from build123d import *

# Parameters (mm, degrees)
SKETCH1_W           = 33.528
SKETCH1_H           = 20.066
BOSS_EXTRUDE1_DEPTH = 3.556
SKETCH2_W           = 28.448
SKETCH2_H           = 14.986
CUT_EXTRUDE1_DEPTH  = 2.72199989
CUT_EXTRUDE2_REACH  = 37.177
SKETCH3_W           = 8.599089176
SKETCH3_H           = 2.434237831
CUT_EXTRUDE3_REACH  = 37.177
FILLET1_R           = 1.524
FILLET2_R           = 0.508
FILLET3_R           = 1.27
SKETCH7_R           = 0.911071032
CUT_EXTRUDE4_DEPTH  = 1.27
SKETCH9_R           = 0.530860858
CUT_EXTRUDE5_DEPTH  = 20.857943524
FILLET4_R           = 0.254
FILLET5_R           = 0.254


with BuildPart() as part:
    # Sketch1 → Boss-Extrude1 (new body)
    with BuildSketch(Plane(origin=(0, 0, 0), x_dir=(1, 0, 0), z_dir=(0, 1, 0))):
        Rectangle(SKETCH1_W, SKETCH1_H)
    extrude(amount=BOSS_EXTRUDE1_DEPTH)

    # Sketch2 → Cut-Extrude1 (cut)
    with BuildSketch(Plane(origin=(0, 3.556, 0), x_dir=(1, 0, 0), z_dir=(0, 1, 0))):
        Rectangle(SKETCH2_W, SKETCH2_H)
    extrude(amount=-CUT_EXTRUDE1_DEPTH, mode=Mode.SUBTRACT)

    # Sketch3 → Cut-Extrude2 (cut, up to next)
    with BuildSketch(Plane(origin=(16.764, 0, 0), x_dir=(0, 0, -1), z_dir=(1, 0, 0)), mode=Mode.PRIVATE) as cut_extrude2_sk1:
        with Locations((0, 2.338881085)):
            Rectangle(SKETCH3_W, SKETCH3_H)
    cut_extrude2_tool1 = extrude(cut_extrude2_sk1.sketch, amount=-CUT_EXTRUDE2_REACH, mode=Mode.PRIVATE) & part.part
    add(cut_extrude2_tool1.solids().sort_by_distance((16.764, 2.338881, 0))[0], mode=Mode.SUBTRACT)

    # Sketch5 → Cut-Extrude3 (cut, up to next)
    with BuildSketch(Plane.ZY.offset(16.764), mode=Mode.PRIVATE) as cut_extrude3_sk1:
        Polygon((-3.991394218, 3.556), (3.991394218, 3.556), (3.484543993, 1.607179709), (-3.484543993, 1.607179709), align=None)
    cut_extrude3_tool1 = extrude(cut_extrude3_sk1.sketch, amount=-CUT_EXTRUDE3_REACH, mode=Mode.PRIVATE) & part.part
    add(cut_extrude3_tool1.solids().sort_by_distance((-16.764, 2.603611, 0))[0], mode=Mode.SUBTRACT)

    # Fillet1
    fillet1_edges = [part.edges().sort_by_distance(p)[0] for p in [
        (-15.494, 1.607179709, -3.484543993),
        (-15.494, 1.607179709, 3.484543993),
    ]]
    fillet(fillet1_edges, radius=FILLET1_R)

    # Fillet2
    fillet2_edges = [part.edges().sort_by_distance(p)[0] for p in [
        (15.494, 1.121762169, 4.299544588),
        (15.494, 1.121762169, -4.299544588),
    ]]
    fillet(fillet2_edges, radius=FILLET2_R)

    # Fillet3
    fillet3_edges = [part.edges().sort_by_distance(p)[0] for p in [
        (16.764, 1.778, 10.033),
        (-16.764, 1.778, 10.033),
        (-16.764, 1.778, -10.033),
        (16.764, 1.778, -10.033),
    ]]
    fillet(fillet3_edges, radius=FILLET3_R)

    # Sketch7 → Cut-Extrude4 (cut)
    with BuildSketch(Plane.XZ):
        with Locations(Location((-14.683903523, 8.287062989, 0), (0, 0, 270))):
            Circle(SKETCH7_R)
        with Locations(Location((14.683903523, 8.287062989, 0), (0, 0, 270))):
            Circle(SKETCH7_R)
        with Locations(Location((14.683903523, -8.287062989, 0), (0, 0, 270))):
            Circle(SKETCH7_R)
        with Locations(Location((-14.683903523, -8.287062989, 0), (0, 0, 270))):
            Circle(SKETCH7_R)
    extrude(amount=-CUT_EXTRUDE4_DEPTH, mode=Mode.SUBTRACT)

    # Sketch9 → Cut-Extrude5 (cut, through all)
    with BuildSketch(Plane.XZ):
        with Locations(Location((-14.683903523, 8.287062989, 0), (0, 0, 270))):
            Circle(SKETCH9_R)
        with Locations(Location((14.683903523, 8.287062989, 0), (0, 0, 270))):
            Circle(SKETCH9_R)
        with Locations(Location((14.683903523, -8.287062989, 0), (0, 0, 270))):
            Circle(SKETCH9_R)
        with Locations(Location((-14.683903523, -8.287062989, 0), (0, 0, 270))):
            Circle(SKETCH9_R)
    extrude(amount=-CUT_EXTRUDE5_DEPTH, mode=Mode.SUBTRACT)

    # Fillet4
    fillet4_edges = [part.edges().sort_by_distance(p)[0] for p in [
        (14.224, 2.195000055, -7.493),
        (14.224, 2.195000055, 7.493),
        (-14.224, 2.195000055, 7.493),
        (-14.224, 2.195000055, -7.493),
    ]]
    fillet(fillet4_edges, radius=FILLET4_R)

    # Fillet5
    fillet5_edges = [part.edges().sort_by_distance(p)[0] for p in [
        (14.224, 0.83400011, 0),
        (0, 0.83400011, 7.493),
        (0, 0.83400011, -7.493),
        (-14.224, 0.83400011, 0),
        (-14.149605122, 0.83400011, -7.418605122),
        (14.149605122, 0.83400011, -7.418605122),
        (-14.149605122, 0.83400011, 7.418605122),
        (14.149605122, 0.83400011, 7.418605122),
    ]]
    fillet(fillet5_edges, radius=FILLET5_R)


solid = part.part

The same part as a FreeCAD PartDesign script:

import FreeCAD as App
import Part
import Sketcher
Q = App.Units.Quantity


def edges_at(feature, points):
    """Names of the edges that pass closest to the given points."""
    edges = feature.Shape.Edges
    near = lambda p: min(range(len(edges)), key=lambda i: edges[i].distToShape(Part.Vertex(*p))[0])
    return sorted({f"Edge{near(p) + 1}" for p in points})

doc = App.newDocument("Part")
params = doc.addObject("Spreadsheet::Sheet", "Params")
for row, (alias, value) in enumerate([
    ("sketch1_width", "1.32 in"),
    ("sketch1_height", "0.79 in"),
    ("pad1_length", "0.14 in"),
    ("sketch2_width", "1.12 in"),
    ("sketch2_height", "0.59 in"),
    ("pocket1_length", "2.722 mm"),
    ("fillet_radius", "0.06 in"),
    ("fillet2_radius", "0.02 in"),
    ("fillet3_radius", "0.05 in"),
    ("pocket4_length", "0.05 in"),
    ("fillet4_radius", "0.01 in"),
    ("fillet5_radius", "0.01 in"),
], start=1):
    params.set(f"A{row}", alias)
    params.set(f"B{row}", "=" + value)
    params.setAlias(f"B{row}", alias)

body = doc.addObject("PartDesign::Body", "Body")

sketch1 = body.newObject("Sketcher::SketchObject", "Sketch")
sketch1.AttachmentSupport = (doc.getObject("XZ_Plane"), [""])
sketch1.MapMode = "FlatFace"
sketch1.addGeometry(Part.LineSegment(App.Vector(-17, -10, 0), App.Vector(-17, 10, 0)), False)
sketch1.addGeometry(Part.LineSegment(App.Vector(-17, 10, 0), App.Vector(17, 10, 0)), False)
sketch1.addGeometry(Part.LineSegment(App.Vector(17, 10, 0), App.Vector(17, -10, 0)), False)
sketch1.addGeometry(Part.LineSegment(App.Vector(17, -10, 0), App.Vector(-17, -10, 0)), False)
sketch1.addConstraint(Sketcher.Constraint("Coincident", 0, 2, 1, 1))
sketch1.addConstraint(Sketcher.Constraint("Coincident", 1, 2, 2, 1))
sketch1.addConstraint(Sketcher.Constraint("Coincident", 2, 2, 3, 1))
sketch1.addConstraint(Sketcher.Constraint("Coincident", 3, 2, 0, 1))
sketch1.addConstraint(Sketcher.Constraint("Vertical", 0))
sketch1.addConstraint(Sketcher.Constraint("Horizontal", 1))
sketch1.addConstraint(Sketcher.Constraint("Vertical", 2))
sketch1.addConstraint(Sketcher.Constraint("Horizontal", 3))
sketch1.addConstraint(Sketcher.Constraint("Symmetric", 0, 2, 2, 2, -1, 1))
sketch1.addConstraint(Sketcher.Constraint("DistanceX", 1, 1, 1, 2, Q("1.32 in")))
sketch1.addConstraint(Sketcher.Constraint("DistanceY", 0, 1, 0, 2, Q("0.79 in")))
sketch1.setExpression("Constraints[9]", "Params.sketch1_width")
sketch1.setExpression("Constraints[10]", "Params.sketch1_height")
pad1 = body.newObject("PartDesign::Pad", "Pad")
pad1.Profile = sketch1
pad1.setExpression("Length", "Params.pad1_length")
pad1.Reversed = True

sketch2 = body.newObject("Sketcher::SketchObject", "Sketch001")
sketch2.AttachmentSupport = (doc.getObject("XZ_Plane"), [""])
sketch2.MapMode = "FlatFace"
sketch2.AttachmentOffset = App.Placement(App.Vector(0, 0, -0.14 * 25.4), App.Rotation())
sketch2.addGeometry(Part.LineSegment(App.Vector(-14, -7, 0), App.Vector(-14, 7, 0)), False)
sketch2.addGeometry(Part.LineSegment(App.Vector(-14, 7, 0), App.Vector(14, 7, 0)), False)
sketch2.addGeometry(Part.LineSegment(App.Vector(14, 7, 0), App.Vector(14, -7, 0)), False)
sketch2.addGeometry(Part.LineSegment(App.Vector(14, -7, 0), App.Vector(-14, -7, 0)), False)
sketch2.addConstraint(Sketcher.Constraint("Coincident", 0, 2, 1, 1))
sketch2.addConstraint(Sketcher.Constraint("Coincident", 1, 2, 2, 1))
sketch2.addConstraint(Sketcher.Constraint("Coincident", 2, 2, 3, 1))
sketch2.addConstraint(Sketcher.Constraint("Coincident", 3, 2, 0, 1))
sketch2.addConstraint(Sketcher.Constraint("Vertical", 0))
sketch2.addConstraint(Sketcher.Constraint("Horizontal", 1))
sketch2.addConstraint(Sketcher.Constraint("Vertical", 2))
sketch2.addConstraint(Sketcher.Constraint("Horizontal", 3))
sketch2.addConstraint(Sketcher.Constraint("Symmetric", 0, 2, 2, 2, -1, 1))
sketch2.addConstraint(Sketcher.Constraint("DistanceX", 1, 1, 1, 2, Q("1.12 in")))
sketch2.addConstraint(Sketcher.Constraint("DistanceY", 0, 1, 0, 2, Q("0.59 in")))
sketch2.setExpression("Constraints[9]", "Params.sketch2_width")
sketch2.setExpression("Constraints[10]", "Params.sketch2_height")
pocket1 = body.newObject("PartDesign::Pocket", "Pocket")
pocket1.Profile = sketch2
pocket1.setExpression("Length", "Params.pocket1_length")
pocket1.Reversed = True

sketch3 = body.newObject("Sketcher::SketchObject", "Sketch002")
sketch3.AttachmentSupport = (doc.getObject("YZ_Plane"), [""])
sketch3.MapMode = "FlatFace"
sketch3.AttachmentOffset = App.Placement(App.Vector(0, 0, 0.66 * 25.4), App.Rotation())
sketch3.addGeometry(Part.LineSegment(App.Vector(3.6, 4.3, 0), App.Vector(1.1, 4.3, 0)), False)
sketch3.addGeometry(Part.LineSegment(App.Vector(1.1, 4.3, 0), App.Vector(1.1, -4.3, 0)), False)
sketch3.addGeometry(Part.LineSegment(App.Vector(1.1, -4.3, 0), App.Vector(3.6, -4.3, 0)), False)
sketch3.addGeometry(Part.LineSegment(App.Vector(3.6, -4.3, 0), App.Vector(3.6, 4.3, 0)), False)
sketch3.addConstraint(Sketcher.Constraint("Coincident", 0, 2, 1, 1))
sketch3.addConstraint(Sketcher.Constraint("Coincident", 1, 2, 2, 1))
sketch3.addConstraint(Sketcher.Constraint("Coincident", 2, 2, 3, 1))
sketch3.addConstraint(Sketcher.Constraint("Coincident", 3, 2, 0, 1))
sketch3.addConstraint(Sketcher.Constraint("Horizontal", 0))
sketch3.addConstraint(Sketcher.Constraint("Vertical", 1))
sketch3.addConstraint(Sketcher.Constraint("Horizontal", 2))
sketch3.addConstraint(Sketcher.Constraint("Vertical", 3))
sketch3.addConstraint(Sketcher.Constraint("DistanceX", -1, 1, 2, 2, Q("0.14 in")))
sketch3.addConstraint(Sketcher.Constraint("DistanceY", 1, 2, 1, 1, Q("8.599089 mm")))
sketch3.addConstraint(Sketcher.Constraint("DistanceX", 0, 2, 0, 1, Q("2.434238 mm")))
sketch3.addConstraint(Sketcher.Constraint("DistanceY", -1, 1, 0, 2, Q("4.299545 mm")))
pocket2 = body.newObject("PartDesign::Pocket", "Pocket001")
pocket2.Profile = sketch3
pocket2.Type = "UpToFirst"

sketch4 = body.newObject("Sketcher::SketchObject", "Sketch003")
sketch4.AttachmentSupport = (doc.getObject("YZ_Plane"), [""])
sketch4.MapMode = "FlatFace"
sketch4.AttachmentOffset = App.Placement(App.Vector(0, 0, -0.66 * 25.4), App.Rotation())
sketch4.addGeometry(Part.LineSegment(App.Vector(3.6, 4, 0), App.Vector(3.6, -4, 0)), False)
sketch4.addGeometry(Part.LineSegment(App.Vector(3.6, -4, 0), App.Vector(1.6, -3.5, 0)), False)
sketch4.addGeometry(Part.LineSegment(App.Vector(1.6, -3.5, 0), App.Vector(1.6, 3.5, 0)), False)
sketch4.addGeometry(Part.LineSegment(App.Vector(1.6, 3.5, 0), App.Vector(3.6, 4, 0)), False)
sketch4.addConstraint(Sketcher.Constraint("Coincident", 0, 2, 1, 1))
sketch4.addConstraint(Sketcher.Constraint("Coincident", 1, 2, 2, 1))
sketch4.addConstraint(Sketcher.Constraint("Coincident", 2, 2, 3, 1))
sketch4.addConstraint(Sketcher.Constraint("Coincident", 3, 2, 0, 1))
sketch4.addConstraint(Sketcher.Constraint("Vertical", 0))
sketch4.addConstraint(Sketcher.Constraint("Vertical", 2))
sketch4.addConstraint(Sketcher.Constraint("Equal", 1, 3))
sketch4.addConstraint(Sketcher.Constraint("DistanceX", -1, 1, 0, 2, Q("0.14 in")))
sketch4.addConstraint(Sketcher.Constraint("DistanceY", 0, 2, 0, 1, Q("7.982788 mm")))
sketch4.addConstraint(Sketcher.Constraint("DistanceY", 2, 1, 2, 2, Q("6.969088 mm")))
sketch4.addConstraint(Sketcher.Constraint("DistanceX", -1, 1, 1, 2, Q("1.60718 mm")))
sketch4.addConstraint(Sketcher.Constraint("DistanceY", 0, 2, -1, 1, Q("3.991394 mm")))
pocket3 = body.newObject("PartDesign::Pocket", "Pocket002")
pocket3.Profile = sketch4
pocket3.Type = "UpToFirst"
pocket3.Reversed = True
doc.recompute()

fillet = body.newObject("PartDesign::Fillet", "Fillet")
fillet.Base = (pocket3, edges_at(pocket3, [(-15.494, 1.607, -3.485), (-15.494, 1.607, 3.485)]))
fillet.setExpression("Radius", "Params.fillet_radius")
doc.recompute()

fillet2 = body.newObject("PartDesign::Fillet", "Fillet001")
fillet2.Base = (fillet, edges_at(fillet, [(15.494, 1.122, 4.3), (15.494, 1.122, -4.3)]))
fillet2.setExpression("Radius", "Params.fillet2_radius")
doc.recompute()

fillet3 = body.newObject("PartDesign::Fillet", "Fillet002")
fillet3.Base = (fillet2, edges_at(fillet2, [
    (16.764, 1.778, 10.033),
    (-16.764, 1.778, 10.033),
    (-16.764, 1.778, -10.033),
    (16.764, 1.778, -10.033),
]))
fillet3.setExpression("Radius", "Params.fillet3_radius")

sketch5 = body.newObject("Sketcher::SketchObject", "Sketch004")
sketch5.AttachmentSupport = (doc.getObject("XZ_Plane"), [""])
sketch5.MapMode = "FlatFace"
sketch5.addGeometry(Part.Circle(App.Vector(-14.7, 8.3, 0), App.Vector(0, 0, 1), 0.9), False)
sketch5.addGeometry(Part.Circle(App.Vector(14.7, 8.3, 0), App.Vector(0, 0, 1), 0.9), False)
sketch5.addGeometry(Part.Circle(App.Vector(14.7, -8.3, 0), App.Vector(0, 0, 1), 0.9), False)
sketch5.addGeometry(Part.Circle(App.Vector(-14.7, -8.3, 0), App.Vector(0, 0, 1), 0.9), False)
sketch5.addConstraint(Sketcher.Constraint("Equal", 0, 1))
sketch5.addConstraint(Sketcher.Constraint("Equal", 1, 2))
sketch5.addConstraint(Sketcher.Constraint("Equal", 2, 3))
sketch5.addConstraint(Sketcher.Constraint("Symmetric", 0, 3, 2, 3, -1, 1))
sketch5.addConstraint(Sketcher.Constraint("Symmetric", 1, 3, 3, 3, -1, 1))
sketch5.addConstraint(Sketcher.Constraint("Symmetric", 0, 3, 1, 3, -2))
sketch5.addConstraint(Sketcher.Constraint("Diameter", 0, Q("1.822142 mm")))
sketch5.addConstraint(Sketcher.Constraint("DistanceX", 0, 3, -1, 1, Q("14.683904 mm")))
sketch5.addConstraint(Sketcher.Constraint("DistanceY", -1, 1, 0, 3, Q("8.287063 mm")))
pocket4 = body.newObject("PartDesign::Pocket", "Pocket003")
pocket4.Profile = sketch5
pocket4.setExpression("Length", "Params.pocket4_length")

sketch6 = body.newObject("Sketcher::SketchObject", "Sketch005")
sketch6.AttachmentSupport = (doc.getObject("XZ_Plane"), [""])
sketch6.MapMode = "FlatFace"
sketch6.addGeometry(Part.Circle(App.Vector(-14.7, 8.3, 0), App.Vector(0, 0, 1), 0.5), False)
sketch6.addGeometry(Part.Circle(App.Vector(14.7, 8.3, 0), App.Vector(0, 0, 1), 0.5), False)
sketch6.addGeometry(Part.Circle(App.Vector(14.7, -8.3, 0), App.Vector(0, 0, 1), 0.5), False)
sketch6.addGeometry(Part.Circle(App.Vector(-14.7, -8.3, 0), App.Vector(0, 0, 1), 0.5), False)
sketch6.addConstraint(Sketcher.Constraint("Equal", 0, 1))
sketch6.addConstraint(Sketcher.Constraint("Equal", 1, 2))
sketch6.addConstraint(Sketcher.Constraint("Equal", 2, 3))
sketch6.addConstraint(Sketcher.Constraint("Symmetric", 0, 3, 2, 3, -1, 1))
sketch6.addConstraint(Sketcher.Constraint("Symmetric", 1, 3, 3, 3, -1, 1))
sketch6.addConstraint(Sketcher.Constraint("Symmetric", 0, 3, 1, 3, -2))
sketch6.addConstraint(Sketcher.Constraint("Diameter", 0, Q("0.0418001 in")))
sketch6.addConstraint(Sketcher.Constraint("DistanceX", 0, 3, -1, 1, Q("14.683904 mm")))
sketch6.addConstraint(Sketcher.Constraint("DistanceY", -1, 1, 0, 3, Q("8.287063 mm")))
pocket5 = body.newObject("PartDesign::Pocket", "Pocket004")
pocket5.Profile = sketch6
pocket5.Type = "ThroughAll"
doc.recompute()

fillet4 = body.newObject("PartDesign::Fillet", "Fillet003")
fillet4.Base = (pocket5, edges_at(pocket5, [
    (14.224, 2.195, -7.493),
    (14.224, 2.195, 7.493),
    (-14.224, 2.195, 7.493),
    (-14.224, 2.195, -7.493),
]))
fillet4.setExpression("Radius", "Params.fillet4_radius")
doc.recompute()

fillet5 = body.newObject("PartDesign::Fillet", "Fillet004")
fillet5.Base = (fillet4, edges_at(fillet4, [
    (14.224, 0.834, 0),
    (0, 0.834, 7.493),
    (0, 0.834, -7.493),
    (-14.224, 0.834, 0),
    (-14.15, 0.834, -7.419),
    (14.15, 0.834, -7.419),
    (-14.15, 0.834, 7.419),
    (14.15, 0.834, 7.419),
]))
fillet5.setExpression("Radius", "Params.fillet5_radius")

doc.recompute()
